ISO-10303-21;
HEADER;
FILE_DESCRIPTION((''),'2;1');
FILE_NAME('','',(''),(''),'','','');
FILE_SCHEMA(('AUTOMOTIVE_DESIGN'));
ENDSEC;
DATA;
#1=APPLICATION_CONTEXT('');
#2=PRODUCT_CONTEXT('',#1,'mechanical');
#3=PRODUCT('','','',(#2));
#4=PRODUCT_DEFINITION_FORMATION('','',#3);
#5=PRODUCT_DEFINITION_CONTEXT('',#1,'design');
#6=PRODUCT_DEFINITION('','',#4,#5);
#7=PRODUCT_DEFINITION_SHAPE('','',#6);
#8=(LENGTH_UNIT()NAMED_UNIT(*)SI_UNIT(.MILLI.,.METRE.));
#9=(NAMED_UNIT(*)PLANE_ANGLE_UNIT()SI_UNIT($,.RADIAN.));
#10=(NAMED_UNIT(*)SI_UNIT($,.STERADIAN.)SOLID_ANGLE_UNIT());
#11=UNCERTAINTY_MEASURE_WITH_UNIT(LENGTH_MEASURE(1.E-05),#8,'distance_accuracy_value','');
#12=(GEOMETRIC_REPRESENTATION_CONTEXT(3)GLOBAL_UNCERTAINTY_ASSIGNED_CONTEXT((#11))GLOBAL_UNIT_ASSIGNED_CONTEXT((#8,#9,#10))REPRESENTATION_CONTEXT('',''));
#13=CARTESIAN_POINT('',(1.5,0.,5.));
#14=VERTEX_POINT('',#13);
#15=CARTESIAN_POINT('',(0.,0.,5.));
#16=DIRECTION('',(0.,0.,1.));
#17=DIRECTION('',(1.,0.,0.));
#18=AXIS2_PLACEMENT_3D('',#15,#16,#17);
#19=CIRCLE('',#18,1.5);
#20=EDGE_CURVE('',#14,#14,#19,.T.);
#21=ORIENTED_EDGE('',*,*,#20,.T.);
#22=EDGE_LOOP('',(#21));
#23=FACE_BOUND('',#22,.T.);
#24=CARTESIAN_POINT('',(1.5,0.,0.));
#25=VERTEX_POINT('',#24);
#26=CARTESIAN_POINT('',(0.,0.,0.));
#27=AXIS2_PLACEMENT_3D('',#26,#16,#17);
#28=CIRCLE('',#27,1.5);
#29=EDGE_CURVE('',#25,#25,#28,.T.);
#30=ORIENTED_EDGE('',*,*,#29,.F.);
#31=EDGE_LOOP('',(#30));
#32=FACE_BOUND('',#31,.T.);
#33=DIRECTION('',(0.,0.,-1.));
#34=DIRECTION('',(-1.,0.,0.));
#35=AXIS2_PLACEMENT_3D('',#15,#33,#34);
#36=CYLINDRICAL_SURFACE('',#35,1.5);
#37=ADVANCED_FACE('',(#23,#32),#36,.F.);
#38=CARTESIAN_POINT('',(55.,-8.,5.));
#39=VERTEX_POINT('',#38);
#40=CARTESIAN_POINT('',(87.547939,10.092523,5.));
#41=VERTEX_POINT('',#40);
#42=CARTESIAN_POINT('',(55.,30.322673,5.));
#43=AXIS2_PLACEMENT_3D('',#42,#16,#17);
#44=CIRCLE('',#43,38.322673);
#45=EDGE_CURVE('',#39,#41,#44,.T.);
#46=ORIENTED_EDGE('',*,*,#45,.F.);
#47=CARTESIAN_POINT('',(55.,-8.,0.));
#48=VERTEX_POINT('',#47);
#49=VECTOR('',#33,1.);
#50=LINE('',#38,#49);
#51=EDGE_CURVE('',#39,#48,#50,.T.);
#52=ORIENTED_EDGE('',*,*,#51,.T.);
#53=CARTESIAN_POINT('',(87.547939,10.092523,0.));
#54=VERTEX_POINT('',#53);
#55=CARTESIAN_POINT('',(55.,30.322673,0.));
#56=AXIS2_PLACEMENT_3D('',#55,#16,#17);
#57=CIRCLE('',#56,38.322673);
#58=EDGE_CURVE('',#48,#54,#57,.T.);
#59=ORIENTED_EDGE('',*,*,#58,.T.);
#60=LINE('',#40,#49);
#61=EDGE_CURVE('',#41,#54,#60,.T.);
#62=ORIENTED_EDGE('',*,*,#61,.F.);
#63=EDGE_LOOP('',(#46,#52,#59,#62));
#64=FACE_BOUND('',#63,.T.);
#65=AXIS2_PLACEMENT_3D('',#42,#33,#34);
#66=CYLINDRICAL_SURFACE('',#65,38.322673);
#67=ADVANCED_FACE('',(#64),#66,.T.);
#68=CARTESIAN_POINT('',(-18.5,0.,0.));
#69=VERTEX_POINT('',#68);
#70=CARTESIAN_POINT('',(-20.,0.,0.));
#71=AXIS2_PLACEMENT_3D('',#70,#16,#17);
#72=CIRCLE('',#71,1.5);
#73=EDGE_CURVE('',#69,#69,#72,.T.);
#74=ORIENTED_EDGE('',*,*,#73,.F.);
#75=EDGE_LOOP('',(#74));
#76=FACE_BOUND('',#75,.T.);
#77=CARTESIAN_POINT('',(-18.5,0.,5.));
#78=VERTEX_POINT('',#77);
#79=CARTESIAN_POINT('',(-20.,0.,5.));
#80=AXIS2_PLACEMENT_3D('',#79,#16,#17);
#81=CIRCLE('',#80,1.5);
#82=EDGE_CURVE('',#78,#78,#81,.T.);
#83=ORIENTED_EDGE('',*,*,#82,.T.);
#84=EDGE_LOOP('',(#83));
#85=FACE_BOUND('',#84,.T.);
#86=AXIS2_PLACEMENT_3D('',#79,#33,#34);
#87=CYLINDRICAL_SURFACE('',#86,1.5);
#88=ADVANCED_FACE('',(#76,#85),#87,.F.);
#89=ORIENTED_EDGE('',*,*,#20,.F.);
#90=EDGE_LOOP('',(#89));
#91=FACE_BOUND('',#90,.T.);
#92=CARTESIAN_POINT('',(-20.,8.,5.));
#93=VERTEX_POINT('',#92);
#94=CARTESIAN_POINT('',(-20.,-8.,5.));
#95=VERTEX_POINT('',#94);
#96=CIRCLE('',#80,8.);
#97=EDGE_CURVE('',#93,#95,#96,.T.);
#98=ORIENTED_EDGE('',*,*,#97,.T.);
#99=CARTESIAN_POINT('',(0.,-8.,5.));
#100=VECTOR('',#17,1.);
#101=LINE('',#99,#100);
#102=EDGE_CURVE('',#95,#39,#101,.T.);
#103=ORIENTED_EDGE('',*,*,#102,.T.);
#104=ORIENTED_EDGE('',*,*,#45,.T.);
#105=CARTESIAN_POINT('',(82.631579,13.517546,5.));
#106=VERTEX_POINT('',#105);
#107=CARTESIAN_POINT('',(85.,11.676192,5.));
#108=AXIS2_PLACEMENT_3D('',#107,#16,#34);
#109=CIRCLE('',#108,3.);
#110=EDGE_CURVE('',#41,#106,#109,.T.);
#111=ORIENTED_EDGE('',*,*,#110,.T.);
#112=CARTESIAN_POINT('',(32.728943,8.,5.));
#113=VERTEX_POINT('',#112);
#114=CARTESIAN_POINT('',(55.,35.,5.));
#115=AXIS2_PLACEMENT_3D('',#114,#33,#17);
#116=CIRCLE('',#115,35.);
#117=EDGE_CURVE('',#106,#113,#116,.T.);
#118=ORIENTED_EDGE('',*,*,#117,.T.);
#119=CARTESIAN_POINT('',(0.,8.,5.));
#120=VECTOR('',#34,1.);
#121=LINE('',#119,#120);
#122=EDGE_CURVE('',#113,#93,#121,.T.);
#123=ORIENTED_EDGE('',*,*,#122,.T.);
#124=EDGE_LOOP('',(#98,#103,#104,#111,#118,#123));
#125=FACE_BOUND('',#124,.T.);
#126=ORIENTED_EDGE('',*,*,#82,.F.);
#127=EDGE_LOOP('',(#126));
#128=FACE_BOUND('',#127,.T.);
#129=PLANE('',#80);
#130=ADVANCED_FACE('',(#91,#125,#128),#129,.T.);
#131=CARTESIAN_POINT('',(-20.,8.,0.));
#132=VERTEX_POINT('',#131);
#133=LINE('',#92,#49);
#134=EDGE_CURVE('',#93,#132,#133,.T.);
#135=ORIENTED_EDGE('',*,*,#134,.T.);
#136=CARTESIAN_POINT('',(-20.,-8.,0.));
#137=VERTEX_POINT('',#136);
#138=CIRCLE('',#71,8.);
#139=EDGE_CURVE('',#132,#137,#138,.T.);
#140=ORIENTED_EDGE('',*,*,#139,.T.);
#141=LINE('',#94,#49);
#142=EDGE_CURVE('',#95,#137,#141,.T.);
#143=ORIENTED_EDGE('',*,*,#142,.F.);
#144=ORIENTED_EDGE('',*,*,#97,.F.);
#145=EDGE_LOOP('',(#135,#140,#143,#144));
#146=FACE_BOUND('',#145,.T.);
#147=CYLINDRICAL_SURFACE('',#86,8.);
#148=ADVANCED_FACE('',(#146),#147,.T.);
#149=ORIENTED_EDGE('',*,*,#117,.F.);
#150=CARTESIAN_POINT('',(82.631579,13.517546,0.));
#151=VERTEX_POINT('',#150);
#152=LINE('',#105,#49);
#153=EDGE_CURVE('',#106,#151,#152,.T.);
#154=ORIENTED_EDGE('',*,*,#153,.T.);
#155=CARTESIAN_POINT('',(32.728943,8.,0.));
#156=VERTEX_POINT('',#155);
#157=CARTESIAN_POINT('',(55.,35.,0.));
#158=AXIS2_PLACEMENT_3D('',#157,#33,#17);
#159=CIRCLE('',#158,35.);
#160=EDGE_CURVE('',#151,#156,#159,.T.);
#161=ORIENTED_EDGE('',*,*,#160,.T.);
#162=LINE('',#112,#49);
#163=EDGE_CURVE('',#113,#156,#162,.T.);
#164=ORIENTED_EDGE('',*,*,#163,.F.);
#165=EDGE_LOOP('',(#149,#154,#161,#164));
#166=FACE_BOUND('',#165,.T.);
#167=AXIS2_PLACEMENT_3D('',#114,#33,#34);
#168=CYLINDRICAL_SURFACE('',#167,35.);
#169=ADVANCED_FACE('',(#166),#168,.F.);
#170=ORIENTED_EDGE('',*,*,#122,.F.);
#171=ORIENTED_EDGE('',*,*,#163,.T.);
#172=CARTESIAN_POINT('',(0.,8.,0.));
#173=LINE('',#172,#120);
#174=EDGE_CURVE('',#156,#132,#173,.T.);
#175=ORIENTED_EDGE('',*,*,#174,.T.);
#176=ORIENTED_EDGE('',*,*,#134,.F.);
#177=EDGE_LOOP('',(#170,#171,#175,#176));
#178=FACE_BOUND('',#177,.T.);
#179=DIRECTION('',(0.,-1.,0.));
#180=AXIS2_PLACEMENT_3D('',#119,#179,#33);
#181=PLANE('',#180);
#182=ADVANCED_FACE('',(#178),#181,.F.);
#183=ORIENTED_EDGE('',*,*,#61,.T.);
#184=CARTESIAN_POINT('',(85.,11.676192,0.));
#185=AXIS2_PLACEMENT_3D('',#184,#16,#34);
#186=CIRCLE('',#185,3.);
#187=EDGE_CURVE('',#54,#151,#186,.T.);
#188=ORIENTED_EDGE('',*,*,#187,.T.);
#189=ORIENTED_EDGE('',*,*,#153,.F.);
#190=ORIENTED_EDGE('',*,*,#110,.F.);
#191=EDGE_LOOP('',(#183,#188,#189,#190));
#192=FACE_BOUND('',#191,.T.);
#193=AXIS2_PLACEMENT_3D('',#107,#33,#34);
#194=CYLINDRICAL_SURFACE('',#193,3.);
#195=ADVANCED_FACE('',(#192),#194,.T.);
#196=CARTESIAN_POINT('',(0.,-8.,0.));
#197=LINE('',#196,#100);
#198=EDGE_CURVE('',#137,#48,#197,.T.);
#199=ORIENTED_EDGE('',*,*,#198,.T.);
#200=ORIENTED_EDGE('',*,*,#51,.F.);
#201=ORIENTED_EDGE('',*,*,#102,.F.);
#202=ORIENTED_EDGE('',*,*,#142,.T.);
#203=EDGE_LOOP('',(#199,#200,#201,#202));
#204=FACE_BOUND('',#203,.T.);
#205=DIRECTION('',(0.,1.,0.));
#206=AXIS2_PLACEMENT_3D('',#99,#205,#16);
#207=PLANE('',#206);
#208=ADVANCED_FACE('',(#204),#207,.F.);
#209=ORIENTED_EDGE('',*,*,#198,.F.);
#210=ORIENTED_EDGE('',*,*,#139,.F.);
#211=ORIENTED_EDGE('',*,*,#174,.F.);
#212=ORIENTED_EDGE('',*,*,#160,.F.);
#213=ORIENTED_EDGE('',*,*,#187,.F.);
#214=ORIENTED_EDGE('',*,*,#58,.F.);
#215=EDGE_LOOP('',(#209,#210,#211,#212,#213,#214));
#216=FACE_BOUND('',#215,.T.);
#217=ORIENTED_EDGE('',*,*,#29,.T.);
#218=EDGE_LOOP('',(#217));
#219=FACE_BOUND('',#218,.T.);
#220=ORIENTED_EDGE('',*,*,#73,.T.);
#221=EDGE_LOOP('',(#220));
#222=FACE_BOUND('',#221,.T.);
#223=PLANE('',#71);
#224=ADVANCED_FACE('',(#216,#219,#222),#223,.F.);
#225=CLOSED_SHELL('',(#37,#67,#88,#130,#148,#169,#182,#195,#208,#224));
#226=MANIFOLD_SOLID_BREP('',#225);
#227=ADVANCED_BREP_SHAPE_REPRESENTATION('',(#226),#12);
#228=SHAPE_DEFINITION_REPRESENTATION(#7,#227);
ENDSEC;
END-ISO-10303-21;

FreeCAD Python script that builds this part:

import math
import FreeCAD as App
import Part
import Sketcher

V = App.Vector
Q = App.Units.Quantity

doc = App.newDocument("Part")
body = doc.addObject("PartDesign::Body", "Body")

# Sketch on XY plane
sketch1 = body.newObject("Sketcher::SketchObject", "Sketch")
sketch1.AttachmentSupport = (doc.getObject("XY_Plane"), [""])
sketch1.MapMode = "FlatFace"
sketch1.addGeometry([
    Part.ArcOfCircle(Part.Circle(V(55, 35, 0), V(0, 0, 1), 35), math.radians(-129.517653), math.radians(-37.863646)),  # 0
    Part.LineSegment(V(32.728943, 8, 0), V(-20, 8, 0)),  # 1
    Part.ArcOfCircle(Part.Circle(V(-20, 0, 0), V(0, 0, 1), 8), math.radians(90), math.radians(270)),  # 2
    Part.LineSegment(V(-20, -8, 0), V(55, -8, 0)),  # 3
    Part.ArcOfCircle(Part.Circle(V(55, 30.322673, 0), V(0, 0, 1), 38.322673), math.radians(-90), math.radians(-31.862991)),  # 4
    Part.ArcOfCircle(Part.Circle(V(85, 11.676192, 0), V(0, 0, 1), 3), math.radians(-31.862991), math.radians(142.136354)),  # 5
    Part.Circle(V(0, 0, 0), V(0, 0, 1), 1.5),  # 6
    Part.Circle(V(-20, 0, 0), V(0, 0, 1), 1.5),  # 7
], False)
sketch1.addConstraint([
    Sketcher.Constraint("Coincident", 0, 1, 1, 1),
    Sketcher.Constraint("Tangent", 1, 2, 2, 1),
    Sketcher.Constraint("Tangent", 2, 2, 3, 1),
    Sketcher.Constraint("Tangent", 3, 2, 4, 1),
    Sketcher.Constraint("Tangent", 4, 2, 5, 1),
    Sketcher.Constraint("Tangent", 5, 2, 0, 2),
    Sketcher.Constraint("Horizontal", 1),
    Sketcher.Constraint("Horizontal", 3),
    Sketcher.Constraint("Coincident", 6, 3, -1, 1),
    Sketcher.Constraint("Coincident", 7, 3, 2, 3),
    Sketcher.Constraint("Equal", 6, 7),
    Sketcher.Constraint("PointOnObject", 2, 3, -1),
    Sketcher.Constraint("Vertical", 0, 3, 4, 3),
    Sketcher.Constraint("Diameter", 6, Q("3 mm")),
    Sketcher.Constraint("Radius", 0, Q("35 mm")),
    Sketcher.Constraint("Radius", 2, Q("8 mm")),
    Sketcher.Constraint("Radius", 5, Q("3 mm")),
    Sketcher.Constraint("DistanceX", 3, 1, 3, 2, Q("75 mm")),
    Sketcher.Constraint("DistanceX", -1, 1, 0, 3, Q("55 mm")),
    Sketcher.Constraint("DistanceY", -1, 1, 0, 3, Q("35 mm")),
    Sketcher.Constraint("DistanceX", -1, 1, 5, 3, Q("85 mm")),
])
pad1 = body.newObject("PartDesign::Pad", "Pad")
pad1.Profile = sketch1
pad1.Length = 5

doc.recompute()
